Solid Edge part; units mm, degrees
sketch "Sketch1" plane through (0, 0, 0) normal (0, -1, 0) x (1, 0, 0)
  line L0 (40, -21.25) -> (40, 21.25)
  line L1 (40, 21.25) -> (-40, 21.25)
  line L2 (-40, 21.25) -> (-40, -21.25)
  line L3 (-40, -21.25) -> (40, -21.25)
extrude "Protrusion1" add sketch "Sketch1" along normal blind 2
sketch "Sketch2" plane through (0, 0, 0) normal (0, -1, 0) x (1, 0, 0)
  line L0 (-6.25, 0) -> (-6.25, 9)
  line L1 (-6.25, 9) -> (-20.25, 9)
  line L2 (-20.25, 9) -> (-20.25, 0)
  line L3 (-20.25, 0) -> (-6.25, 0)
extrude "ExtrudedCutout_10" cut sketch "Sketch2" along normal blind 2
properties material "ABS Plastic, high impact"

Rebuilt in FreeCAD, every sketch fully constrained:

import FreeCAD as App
import Part
import Sketcher

V = App.Vector
Q = App.Units.Quantity

doc = App.newDocument("Part")
body = doc.addObject("PartDesign::Body", "Body")

# Sketch on XZ plane
sketch1 = body.newObject("Sketcher::SketchObject", "Sketch")
sketch1.AttachmentSupport = (doc.getObject("XZ_Plane"), [""])
sketch1.MapMode = "FlatFace"
sketch1.addGeometry([
    Part.LineSegment(V(-40, -21, 0), V(40, -21, 0)),
    Part.LineSegment(V(40, -21, 0), V(40, 21, 0)),
    Part.LineSegment(V(40, 21, 0), V(-40, 21, 0)),
    Part.LineSegment(V(-40, 21, 0), V(-40, -21, 0)),
], False)
sketch1.addConstraint([
    Sketcher.Constraint("Coincident", 0, 2, 1, 1),
    Sketcher.Constraint("Coincident", 1, 2, 2, 1),
    Sketcher.Constraint("Coincident", 2, 2, 3, 1),
    Sketcher.Constraint("Coincident", 3, 2, 0, 1),
    Sketcher.Constraint("Horizontal", 0),
    Sketcher.Constraint("Vertical", 1),
    Sketcher.Constraint("Horizontal", 2),
    Sketcher.Constraint("Vertical", 3),
    Sketcher.Constraint("Symmetric", 0, 2, 2, 2, -1, 1),
    Sketcher.Constraint("DistanceX", 0, 1, 0, 2, Q("80 mm")),
    Sketcher.Constraint("DistanceY", 1, 1, 1, 2, Q("42.5 mm")),
])
pad1 = body.newObject("PartDesign::Pad", "Pad")
pad1.Profile = sketch1
pad1.Length = 2

# Sketch on XZ plane
sketch2 = body.newObject("Sketcher::SketchObject", "Sketch001")
sketch2.AttachmentSupport = (doc.getObject("XZ_Plane"), [""])
sketch2.MapMode = "FlatFace"
sketch2.addGeometry([
    Part.LineSegment(V(-20, 0, 0), V(-6, 0, 0)),
    Part.LineSegment(V(-6, 0, 0), V(-6, 9, 0)),
    Part.LineSegment(V(-6, 9, 0), V(-20, 9, 0)),
    Part.LineSegment(V(-20, 9, 0), V(-20, 0, 0)),
], False)
sketch2.addConstraint([
    Sketcher.Constraint("Coincident", 0, 2, 1, 1),
    Sketcher.Constraint("Coincident", 1, 2, 2, 1),
    Sketcher.Constraint("Coincident", 2, 2, 3, 1),
    Sketcher.Constraint("Coincident", 3, 2, 0, 1),
    Sketcher.Constraint("Horizontal", 0),
    Sketcher.Constraint("Vertical", 1),
    Sketcher.Constraint("Horizontal", 2),
    Sketcher.Constraint("Vertical", 3),
    Sketcher.Constraint("PointOnObject", 0, 2, -1),
    Sketcher.Constraint("DistanceX", 0, 1, 0, 2, Q("14 mm")),
    Sketcher.Constraint("DistanceY", 1, 1, 1, 2, Q("9 mm")),
    Sketcher.Constraint("DistanceX", 0, 2, -1, 1, Q("6.25 mm")),
])
pocket1 = body.newObject("PartDesign::Pocket", "Pocket")
pocket1.Profile = sketch2
pocket1.Length = 2
pocket1.Reversed = True

doc.recompute()
